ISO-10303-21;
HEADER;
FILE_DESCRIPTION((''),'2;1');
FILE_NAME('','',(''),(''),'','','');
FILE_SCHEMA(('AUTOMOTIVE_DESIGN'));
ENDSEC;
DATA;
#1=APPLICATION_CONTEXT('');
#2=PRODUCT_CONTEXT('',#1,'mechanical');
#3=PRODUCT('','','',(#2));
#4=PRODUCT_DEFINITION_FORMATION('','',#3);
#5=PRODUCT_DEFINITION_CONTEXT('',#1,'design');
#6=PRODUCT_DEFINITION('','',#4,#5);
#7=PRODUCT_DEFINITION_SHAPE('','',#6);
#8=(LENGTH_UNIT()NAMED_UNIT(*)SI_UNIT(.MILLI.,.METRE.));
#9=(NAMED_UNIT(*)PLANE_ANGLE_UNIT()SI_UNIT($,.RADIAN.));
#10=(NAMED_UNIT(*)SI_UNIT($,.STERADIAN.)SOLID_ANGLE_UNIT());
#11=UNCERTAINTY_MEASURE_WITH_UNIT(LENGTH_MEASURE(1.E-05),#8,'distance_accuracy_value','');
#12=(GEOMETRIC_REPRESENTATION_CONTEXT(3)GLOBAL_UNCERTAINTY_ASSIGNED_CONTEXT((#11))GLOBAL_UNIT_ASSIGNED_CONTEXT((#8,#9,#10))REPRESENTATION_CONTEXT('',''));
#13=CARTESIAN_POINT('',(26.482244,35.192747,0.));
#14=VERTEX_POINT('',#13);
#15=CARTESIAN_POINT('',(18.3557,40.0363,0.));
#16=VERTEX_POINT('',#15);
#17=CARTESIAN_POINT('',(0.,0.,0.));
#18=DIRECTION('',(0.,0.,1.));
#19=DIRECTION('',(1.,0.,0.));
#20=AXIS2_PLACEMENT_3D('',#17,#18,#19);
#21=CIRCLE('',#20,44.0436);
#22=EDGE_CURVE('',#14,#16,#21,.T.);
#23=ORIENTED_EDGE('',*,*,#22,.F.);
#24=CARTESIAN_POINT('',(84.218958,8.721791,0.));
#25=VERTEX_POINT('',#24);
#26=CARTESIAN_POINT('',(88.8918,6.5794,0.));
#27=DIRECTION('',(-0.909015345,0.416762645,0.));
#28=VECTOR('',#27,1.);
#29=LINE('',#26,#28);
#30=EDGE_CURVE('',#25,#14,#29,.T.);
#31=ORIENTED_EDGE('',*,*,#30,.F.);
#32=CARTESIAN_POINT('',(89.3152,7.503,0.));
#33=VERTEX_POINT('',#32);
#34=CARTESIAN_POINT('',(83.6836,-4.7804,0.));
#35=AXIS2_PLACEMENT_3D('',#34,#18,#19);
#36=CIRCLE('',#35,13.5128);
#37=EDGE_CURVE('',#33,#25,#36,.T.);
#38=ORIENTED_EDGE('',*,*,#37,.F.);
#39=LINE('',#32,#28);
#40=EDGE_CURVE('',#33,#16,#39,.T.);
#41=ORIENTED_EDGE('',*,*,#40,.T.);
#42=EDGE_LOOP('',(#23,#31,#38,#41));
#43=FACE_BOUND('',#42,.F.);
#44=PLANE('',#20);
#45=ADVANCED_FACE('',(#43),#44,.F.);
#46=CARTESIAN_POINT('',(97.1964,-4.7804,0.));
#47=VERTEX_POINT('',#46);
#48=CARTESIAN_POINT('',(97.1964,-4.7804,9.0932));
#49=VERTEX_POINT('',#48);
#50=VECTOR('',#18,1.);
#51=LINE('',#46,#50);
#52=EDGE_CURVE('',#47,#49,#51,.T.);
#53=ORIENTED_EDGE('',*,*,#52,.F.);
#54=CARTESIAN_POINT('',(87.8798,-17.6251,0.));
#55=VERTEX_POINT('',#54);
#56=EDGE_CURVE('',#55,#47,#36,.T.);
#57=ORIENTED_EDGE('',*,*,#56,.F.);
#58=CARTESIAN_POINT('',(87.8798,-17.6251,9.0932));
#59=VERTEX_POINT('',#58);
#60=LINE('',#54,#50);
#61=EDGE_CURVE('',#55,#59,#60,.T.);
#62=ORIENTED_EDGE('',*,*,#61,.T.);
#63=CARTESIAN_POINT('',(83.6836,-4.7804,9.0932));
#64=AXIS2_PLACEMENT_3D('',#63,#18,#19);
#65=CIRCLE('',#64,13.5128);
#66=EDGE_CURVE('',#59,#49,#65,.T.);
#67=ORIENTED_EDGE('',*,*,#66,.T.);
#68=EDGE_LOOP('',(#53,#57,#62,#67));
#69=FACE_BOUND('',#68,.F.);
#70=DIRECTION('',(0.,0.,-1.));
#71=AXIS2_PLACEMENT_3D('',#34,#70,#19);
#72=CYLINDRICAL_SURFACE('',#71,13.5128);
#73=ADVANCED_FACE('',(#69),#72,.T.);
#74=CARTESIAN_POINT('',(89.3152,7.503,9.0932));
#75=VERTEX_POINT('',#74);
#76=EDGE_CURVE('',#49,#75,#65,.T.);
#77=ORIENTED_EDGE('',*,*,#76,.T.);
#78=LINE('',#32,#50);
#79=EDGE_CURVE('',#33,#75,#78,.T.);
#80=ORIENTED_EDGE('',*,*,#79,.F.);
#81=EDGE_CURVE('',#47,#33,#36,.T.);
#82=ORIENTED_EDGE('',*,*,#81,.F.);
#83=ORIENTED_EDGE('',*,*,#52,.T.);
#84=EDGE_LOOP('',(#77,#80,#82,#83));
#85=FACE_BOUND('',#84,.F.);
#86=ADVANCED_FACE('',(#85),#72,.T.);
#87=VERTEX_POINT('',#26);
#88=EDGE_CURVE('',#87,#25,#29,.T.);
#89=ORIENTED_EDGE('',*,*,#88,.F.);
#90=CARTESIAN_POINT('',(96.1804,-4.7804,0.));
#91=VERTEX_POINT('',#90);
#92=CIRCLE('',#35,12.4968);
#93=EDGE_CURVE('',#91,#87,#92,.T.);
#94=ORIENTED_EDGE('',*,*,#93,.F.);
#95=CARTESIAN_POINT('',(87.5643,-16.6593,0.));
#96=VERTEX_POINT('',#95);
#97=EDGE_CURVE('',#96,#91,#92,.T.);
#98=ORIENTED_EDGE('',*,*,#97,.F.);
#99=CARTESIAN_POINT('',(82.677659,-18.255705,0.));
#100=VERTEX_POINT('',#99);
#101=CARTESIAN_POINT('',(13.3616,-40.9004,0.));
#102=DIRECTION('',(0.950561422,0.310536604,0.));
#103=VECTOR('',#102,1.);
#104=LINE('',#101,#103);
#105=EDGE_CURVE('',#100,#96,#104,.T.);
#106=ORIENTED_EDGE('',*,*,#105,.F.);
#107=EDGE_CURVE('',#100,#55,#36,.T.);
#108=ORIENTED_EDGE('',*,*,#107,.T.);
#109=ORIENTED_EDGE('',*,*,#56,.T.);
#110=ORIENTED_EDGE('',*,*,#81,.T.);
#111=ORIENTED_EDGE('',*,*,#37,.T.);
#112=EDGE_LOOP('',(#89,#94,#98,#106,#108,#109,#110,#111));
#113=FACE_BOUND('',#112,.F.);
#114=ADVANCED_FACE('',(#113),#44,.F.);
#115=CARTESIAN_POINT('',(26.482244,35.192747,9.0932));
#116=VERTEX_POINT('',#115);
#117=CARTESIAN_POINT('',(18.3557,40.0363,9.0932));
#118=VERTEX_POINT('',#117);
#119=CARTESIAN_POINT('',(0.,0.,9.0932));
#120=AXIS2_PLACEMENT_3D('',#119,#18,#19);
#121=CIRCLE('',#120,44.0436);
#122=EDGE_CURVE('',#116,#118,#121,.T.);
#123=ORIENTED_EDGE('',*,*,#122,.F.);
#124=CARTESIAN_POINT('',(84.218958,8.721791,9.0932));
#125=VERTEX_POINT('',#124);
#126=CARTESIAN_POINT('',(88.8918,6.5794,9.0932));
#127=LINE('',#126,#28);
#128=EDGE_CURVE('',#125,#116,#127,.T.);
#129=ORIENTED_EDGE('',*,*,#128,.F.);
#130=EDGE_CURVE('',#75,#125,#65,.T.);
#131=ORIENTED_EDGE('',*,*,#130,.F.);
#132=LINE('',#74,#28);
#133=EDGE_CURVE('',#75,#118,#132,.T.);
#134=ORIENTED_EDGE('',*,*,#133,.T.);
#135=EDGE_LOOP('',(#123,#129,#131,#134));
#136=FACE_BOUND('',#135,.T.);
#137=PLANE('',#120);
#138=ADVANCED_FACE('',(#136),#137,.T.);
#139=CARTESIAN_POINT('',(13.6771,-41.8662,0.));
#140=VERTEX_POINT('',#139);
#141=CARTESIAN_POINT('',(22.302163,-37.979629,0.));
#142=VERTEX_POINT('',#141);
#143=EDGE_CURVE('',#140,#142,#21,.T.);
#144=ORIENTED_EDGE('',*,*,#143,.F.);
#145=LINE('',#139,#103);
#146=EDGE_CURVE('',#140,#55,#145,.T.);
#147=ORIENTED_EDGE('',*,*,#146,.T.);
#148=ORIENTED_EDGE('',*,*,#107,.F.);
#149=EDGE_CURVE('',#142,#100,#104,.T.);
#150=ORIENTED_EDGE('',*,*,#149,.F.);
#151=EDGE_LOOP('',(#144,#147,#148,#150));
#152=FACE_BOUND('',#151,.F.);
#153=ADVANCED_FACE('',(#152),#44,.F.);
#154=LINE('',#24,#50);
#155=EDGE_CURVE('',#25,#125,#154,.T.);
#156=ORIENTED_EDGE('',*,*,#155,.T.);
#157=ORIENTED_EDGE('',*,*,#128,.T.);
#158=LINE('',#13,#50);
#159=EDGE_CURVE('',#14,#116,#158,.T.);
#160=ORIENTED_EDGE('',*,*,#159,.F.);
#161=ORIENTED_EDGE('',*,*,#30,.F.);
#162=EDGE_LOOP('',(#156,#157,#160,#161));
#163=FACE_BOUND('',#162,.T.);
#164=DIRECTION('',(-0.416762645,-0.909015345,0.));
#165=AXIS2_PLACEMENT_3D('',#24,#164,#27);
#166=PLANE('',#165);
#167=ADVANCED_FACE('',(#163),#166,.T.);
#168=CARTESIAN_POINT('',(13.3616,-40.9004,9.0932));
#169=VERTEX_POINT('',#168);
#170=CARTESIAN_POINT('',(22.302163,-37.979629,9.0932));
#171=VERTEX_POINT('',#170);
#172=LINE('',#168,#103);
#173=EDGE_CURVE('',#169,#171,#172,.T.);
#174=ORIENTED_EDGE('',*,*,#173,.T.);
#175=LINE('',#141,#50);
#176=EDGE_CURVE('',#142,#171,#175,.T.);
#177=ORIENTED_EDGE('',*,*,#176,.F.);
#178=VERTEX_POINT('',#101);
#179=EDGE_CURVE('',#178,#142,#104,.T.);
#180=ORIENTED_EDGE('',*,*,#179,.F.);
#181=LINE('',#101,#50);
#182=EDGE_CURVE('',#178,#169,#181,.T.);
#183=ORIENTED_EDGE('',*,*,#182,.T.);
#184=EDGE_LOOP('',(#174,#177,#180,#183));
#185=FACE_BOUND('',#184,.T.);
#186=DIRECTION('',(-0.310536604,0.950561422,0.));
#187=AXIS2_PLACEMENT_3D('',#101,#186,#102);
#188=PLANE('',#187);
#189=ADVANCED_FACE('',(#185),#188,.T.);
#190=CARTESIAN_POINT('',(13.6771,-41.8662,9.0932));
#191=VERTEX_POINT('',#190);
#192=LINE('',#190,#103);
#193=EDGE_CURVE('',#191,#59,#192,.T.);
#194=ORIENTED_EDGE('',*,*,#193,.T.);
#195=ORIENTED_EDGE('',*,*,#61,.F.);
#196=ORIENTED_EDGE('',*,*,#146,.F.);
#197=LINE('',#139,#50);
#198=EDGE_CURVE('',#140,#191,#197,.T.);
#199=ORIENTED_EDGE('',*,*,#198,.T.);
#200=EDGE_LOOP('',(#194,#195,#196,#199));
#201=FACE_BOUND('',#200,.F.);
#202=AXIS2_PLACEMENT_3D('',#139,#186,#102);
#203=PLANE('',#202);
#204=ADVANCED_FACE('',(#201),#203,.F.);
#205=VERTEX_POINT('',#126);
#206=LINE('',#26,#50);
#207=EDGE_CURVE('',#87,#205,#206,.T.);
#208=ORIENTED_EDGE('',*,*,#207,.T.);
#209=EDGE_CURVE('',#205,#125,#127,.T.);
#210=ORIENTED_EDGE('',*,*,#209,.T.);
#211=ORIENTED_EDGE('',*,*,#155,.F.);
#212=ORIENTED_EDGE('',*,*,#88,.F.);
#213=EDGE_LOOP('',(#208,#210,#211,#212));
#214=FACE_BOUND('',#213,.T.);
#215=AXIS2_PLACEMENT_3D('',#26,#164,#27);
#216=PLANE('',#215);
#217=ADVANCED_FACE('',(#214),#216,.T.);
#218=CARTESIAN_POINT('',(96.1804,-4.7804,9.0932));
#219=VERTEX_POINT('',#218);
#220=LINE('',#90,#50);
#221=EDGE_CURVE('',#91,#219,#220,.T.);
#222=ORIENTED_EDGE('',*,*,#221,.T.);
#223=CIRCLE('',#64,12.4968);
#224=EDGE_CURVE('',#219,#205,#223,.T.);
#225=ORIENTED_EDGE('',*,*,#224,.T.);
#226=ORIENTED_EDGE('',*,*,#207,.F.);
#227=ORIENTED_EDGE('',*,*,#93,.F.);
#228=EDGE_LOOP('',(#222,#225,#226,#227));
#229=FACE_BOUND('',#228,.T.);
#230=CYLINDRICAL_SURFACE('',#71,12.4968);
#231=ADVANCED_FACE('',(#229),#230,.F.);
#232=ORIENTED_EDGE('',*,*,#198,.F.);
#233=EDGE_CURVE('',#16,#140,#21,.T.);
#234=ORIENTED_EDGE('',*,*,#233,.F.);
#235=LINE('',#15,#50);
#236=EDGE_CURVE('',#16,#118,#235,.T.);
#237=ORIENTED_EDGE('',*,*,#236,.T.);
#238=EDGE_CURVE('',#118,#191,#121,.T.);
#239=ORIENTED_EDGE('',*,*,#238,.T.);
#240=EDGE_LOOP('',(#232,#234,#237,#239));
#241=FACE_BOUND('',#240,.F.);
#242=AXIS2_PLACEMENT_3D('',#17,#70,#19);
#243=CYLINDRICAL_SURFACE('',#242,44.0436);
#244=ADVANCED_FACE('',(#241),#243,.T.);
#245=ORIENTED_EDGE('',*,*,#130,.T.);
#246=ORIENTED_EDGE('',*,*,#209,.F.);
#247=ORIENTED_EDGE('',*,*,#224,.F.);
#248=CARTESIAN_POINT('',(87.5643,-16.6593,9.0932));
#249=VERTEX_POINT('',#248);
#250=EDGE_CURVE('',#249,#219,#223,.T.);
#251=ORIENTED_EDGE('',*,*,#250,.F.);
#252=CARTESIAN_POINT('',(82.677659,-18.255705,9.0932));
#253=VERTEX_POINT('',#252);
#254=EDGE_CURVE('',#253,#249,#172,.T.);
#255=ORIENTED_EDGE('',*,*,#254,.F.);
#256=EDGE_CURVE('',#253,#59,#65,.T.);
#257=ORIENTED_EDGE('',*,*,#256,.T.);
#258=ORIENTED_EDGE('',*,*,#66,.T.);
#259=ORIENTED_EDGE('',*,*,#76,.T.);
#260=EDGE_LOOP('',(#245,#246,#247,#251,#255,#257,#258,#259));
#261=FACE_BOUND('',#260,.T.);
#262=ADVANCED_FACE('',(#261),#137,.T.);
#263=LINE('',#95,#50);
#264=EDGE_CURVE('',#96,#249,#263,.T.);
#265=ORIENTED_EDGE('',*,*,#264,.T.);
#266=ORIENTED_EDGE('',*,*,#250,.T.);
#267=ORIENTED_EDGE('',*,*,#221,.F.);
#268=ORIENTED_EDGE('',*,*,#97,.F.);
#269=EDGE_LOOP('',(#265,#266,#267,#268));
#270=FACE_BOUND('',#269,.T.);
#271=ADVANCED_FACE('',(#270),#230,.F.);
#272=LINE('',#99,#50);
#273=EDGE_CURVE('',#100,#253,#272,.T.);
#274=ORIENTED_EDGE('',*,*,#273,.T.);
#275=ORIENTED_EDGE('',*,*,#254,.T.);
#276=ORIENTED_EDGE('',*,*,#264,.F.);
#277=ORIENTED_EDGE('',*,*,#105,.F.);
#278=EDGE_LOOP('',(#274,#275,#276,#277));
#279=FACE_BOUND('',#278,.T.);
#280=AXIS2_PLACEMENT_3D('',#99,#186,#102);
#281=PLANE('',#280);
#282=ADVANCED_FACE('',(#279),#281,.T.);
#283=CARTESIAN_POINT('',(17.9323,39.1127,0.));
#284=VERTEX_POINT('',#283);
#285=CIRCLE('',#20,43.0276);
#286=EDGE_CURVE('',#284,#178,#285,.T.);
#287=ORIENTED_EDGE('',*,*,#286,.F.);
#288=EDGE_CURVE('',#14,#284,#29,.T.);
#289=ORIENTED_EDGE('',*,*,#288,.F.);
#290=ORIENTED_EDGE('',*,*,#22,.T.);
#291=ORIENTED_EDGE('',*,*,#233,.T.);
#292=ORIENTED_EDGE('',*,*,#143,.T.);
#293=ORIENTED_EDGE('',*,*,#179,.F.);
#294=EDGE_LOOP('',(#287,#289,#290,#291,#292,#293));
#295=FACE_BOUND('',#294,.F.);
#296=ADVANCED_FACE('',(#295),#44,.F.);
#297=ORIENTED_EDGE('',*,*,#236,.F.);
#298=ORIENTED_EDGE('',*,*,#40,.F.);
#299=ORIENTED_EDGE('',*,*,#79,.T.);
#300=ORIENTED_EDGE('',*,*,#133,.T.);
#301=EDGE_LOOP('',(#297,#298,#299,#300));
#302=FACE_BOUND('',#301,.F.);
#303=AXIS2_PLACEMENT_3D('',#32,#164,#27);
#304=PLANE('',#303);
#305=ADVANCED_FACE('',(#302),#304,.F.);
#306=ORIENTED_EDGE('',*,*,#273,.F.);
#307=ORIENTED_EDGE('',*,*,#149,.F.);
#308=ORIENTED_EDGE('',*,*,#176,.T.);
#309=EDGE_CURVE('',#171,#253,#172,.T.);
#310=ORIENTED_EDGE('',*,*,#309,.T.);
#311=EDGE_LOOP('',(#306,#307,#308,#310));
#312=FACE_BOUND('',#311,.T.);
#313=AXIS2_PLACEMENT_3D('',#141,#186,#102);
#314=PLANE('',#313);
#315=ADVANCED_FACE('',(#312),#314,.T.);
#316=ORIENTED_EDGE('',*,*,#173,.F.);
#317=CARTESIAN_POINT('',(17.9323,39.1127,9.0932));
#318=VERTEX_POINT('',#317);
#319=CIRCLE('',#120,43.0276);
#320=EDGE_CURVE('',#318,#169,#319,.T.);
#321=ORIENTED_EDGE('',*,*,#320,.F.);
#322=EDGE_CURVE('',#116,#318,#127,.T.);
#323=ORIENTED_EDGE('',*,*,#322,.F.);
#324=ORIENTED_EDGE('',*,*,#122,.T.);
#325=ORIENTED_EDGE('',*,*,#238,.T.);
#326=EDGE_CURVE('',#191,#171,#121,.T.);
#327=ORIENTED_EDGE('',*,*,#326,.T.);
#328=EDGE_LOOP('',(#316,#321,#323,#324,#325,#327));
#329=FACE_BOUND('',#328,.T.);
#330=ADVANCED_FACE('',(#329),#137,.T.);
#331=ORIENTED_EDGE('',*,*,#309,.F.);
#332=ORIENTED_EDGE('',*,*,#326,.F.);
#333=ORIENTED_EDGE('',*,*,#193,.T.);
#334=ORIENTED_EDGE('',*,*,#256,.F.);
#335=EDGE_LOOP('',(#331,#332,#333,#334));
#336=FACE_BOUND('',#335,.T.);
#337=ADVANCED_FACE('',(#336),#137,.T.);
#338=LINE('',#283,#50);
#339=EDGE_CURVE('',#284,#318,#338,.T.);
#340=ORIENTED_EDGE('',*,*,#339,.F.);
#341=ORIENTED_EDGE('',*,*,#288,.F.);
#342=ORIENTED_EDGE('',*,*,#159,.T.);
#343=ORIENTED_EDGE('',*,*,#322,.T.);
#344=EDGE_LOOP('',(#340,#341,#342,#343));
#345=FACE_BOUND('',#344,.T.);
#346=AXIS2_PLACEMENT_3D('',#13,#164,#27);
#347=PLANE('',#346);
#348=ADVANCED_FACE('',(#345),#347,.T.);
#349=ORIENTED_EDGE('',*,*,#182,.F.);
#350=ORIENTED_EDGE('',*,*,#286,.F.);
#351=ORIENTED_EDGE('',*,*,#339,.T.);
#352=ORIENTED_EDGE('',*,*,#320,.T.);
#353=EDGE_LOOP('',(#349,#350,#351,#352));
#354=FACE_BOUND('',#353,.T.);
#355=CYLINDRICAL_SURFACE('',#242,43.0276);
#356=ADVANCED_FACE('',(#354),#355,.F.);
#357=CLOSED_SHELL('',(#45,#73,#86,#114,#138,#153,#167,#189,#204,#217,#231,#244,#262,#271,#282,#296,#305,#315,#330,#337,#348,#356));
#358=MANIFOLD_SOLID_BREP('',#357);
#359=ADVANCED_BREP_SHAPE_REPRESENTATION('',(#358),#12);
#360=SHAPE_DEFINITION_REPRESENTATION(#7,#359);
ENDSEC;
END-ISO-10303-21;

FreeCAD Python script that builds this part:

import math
import FreeCAD as App
import Part
import Sketcher

V = App.Vector
Q = App.Units.Quantity

doc = App.newDocument("Part")
body = doc.addObject("PartDesign::Body", "Body")

# Sketch on XY plane
sketch1 = doc.addObject("Sketcher::SketchObject", "Sketch")
body.addObject(sketch1)
sketch1.AttachmentSupport = (doc.XY_Plane, [""])
sketch1.MapMode = "FlatFace"
sketch1.addGeometry(Part.ArcOfCircle(Part.Circle(V(0, 0, 0), V(0, 0, 1), 44), math.radians(65), math.radians(288)), False)
sketch1.addGeometry(Part.LineSegment(V(14, -42, 0), V(88, -18, 0)), False)
sketch1.addGeometry(Part.ArcOfCircle(Part.Circle(V(84, -5, 0), V(0, 0, 1), 14), math.radians(-72), math.radians(65)), False)
sketch1.addGeometry(Part.LineSegment(V(89, 8, 0), V(18, 40, 0)), False)
sketch1.addGeometry(Part.ArcOfCircle(Part.Circle(V(0, 0, 0), V(0, 0, 1), 43), math.radians(65), math.radians(288)), False)
sketch1.addGeometry(Part.LineSegment(V(18, 39, 0), V(89, 7, 0)), False)
sketch1.addGeometry(Part.ArcOfCircle(Part.Circle(V(84, -5, 0), V(0, 0, 1), 12), math.radians(-72), math.radians(65)), False)
sketch1.addGeometry(Part.LineSegment(V(88, -17, 0), V(13, -41, 0)), False)
sketch1.addConstraint(Sketcher.Constraint("Tangent", 0, 2, 1, 1))
sketch1.addConstraint(Sketcher.Constraint("Tangent", 1, 2, 2, 1))
sketch1.addConstraint(Sketcher.Constraint("Tangent", 2, 2, 3, 1))
sketch1.addConstraint(Sketcher.Constraint("Tangent", 3, 2, 0, 1))
sketch1.addConstraint(Sketcher.Constraint("Tangent", 4, 1, 5, 1))
sketch1.addConstraint(Sketcher.Constraint("Tangent", 5, 2, 6, 2))
sketch1.addConstraint(Sketcher.Constraint("Tangent", 6, 1, 7, 1))
sketch1.addConstraint(Sketcher.Constraint("Tangent", 7, 2, 4, 2))
sketch1.addConstraint(Sketcher.Constraint("Coincident", 0, 3, -1, 1))
sketch1.addConstraint(Sketcher.Constraint("Coincident", 4, 3, -1, 1))
sketch1.addConstraint(Sketcher.Constraint("Coincident", 6, 3, 2, 3))
sketch1.addConstraint(Sketcher.Constraint("Parallel", 3, 5))
sketch1.addConstraint(Sketcher.Constraint("Radius", 0, Q("1.734 in")))
sketch1.addConstraint(Sketcher.Constraint("Radius", 2, Q("0.532 in")))
sketch1.addConstraint(Sketcher.Constraint("Radius", 4, Q("1.694 in")))
sketch1.addConstraint(Sketcher.Constraint("Angle", 3, Q("155.3696 deg")))
sketch1.addConstraint(Sketcher.Constraint("Distance", 1, Q("3.0733 in")))
pad1 = doc.addObject("PartDesign::Pad", "Pad")
body.addObject(pad1)
pad1.Profile = sketch1
pad1.Length = Q("0.358 in")

doc.recompute()
